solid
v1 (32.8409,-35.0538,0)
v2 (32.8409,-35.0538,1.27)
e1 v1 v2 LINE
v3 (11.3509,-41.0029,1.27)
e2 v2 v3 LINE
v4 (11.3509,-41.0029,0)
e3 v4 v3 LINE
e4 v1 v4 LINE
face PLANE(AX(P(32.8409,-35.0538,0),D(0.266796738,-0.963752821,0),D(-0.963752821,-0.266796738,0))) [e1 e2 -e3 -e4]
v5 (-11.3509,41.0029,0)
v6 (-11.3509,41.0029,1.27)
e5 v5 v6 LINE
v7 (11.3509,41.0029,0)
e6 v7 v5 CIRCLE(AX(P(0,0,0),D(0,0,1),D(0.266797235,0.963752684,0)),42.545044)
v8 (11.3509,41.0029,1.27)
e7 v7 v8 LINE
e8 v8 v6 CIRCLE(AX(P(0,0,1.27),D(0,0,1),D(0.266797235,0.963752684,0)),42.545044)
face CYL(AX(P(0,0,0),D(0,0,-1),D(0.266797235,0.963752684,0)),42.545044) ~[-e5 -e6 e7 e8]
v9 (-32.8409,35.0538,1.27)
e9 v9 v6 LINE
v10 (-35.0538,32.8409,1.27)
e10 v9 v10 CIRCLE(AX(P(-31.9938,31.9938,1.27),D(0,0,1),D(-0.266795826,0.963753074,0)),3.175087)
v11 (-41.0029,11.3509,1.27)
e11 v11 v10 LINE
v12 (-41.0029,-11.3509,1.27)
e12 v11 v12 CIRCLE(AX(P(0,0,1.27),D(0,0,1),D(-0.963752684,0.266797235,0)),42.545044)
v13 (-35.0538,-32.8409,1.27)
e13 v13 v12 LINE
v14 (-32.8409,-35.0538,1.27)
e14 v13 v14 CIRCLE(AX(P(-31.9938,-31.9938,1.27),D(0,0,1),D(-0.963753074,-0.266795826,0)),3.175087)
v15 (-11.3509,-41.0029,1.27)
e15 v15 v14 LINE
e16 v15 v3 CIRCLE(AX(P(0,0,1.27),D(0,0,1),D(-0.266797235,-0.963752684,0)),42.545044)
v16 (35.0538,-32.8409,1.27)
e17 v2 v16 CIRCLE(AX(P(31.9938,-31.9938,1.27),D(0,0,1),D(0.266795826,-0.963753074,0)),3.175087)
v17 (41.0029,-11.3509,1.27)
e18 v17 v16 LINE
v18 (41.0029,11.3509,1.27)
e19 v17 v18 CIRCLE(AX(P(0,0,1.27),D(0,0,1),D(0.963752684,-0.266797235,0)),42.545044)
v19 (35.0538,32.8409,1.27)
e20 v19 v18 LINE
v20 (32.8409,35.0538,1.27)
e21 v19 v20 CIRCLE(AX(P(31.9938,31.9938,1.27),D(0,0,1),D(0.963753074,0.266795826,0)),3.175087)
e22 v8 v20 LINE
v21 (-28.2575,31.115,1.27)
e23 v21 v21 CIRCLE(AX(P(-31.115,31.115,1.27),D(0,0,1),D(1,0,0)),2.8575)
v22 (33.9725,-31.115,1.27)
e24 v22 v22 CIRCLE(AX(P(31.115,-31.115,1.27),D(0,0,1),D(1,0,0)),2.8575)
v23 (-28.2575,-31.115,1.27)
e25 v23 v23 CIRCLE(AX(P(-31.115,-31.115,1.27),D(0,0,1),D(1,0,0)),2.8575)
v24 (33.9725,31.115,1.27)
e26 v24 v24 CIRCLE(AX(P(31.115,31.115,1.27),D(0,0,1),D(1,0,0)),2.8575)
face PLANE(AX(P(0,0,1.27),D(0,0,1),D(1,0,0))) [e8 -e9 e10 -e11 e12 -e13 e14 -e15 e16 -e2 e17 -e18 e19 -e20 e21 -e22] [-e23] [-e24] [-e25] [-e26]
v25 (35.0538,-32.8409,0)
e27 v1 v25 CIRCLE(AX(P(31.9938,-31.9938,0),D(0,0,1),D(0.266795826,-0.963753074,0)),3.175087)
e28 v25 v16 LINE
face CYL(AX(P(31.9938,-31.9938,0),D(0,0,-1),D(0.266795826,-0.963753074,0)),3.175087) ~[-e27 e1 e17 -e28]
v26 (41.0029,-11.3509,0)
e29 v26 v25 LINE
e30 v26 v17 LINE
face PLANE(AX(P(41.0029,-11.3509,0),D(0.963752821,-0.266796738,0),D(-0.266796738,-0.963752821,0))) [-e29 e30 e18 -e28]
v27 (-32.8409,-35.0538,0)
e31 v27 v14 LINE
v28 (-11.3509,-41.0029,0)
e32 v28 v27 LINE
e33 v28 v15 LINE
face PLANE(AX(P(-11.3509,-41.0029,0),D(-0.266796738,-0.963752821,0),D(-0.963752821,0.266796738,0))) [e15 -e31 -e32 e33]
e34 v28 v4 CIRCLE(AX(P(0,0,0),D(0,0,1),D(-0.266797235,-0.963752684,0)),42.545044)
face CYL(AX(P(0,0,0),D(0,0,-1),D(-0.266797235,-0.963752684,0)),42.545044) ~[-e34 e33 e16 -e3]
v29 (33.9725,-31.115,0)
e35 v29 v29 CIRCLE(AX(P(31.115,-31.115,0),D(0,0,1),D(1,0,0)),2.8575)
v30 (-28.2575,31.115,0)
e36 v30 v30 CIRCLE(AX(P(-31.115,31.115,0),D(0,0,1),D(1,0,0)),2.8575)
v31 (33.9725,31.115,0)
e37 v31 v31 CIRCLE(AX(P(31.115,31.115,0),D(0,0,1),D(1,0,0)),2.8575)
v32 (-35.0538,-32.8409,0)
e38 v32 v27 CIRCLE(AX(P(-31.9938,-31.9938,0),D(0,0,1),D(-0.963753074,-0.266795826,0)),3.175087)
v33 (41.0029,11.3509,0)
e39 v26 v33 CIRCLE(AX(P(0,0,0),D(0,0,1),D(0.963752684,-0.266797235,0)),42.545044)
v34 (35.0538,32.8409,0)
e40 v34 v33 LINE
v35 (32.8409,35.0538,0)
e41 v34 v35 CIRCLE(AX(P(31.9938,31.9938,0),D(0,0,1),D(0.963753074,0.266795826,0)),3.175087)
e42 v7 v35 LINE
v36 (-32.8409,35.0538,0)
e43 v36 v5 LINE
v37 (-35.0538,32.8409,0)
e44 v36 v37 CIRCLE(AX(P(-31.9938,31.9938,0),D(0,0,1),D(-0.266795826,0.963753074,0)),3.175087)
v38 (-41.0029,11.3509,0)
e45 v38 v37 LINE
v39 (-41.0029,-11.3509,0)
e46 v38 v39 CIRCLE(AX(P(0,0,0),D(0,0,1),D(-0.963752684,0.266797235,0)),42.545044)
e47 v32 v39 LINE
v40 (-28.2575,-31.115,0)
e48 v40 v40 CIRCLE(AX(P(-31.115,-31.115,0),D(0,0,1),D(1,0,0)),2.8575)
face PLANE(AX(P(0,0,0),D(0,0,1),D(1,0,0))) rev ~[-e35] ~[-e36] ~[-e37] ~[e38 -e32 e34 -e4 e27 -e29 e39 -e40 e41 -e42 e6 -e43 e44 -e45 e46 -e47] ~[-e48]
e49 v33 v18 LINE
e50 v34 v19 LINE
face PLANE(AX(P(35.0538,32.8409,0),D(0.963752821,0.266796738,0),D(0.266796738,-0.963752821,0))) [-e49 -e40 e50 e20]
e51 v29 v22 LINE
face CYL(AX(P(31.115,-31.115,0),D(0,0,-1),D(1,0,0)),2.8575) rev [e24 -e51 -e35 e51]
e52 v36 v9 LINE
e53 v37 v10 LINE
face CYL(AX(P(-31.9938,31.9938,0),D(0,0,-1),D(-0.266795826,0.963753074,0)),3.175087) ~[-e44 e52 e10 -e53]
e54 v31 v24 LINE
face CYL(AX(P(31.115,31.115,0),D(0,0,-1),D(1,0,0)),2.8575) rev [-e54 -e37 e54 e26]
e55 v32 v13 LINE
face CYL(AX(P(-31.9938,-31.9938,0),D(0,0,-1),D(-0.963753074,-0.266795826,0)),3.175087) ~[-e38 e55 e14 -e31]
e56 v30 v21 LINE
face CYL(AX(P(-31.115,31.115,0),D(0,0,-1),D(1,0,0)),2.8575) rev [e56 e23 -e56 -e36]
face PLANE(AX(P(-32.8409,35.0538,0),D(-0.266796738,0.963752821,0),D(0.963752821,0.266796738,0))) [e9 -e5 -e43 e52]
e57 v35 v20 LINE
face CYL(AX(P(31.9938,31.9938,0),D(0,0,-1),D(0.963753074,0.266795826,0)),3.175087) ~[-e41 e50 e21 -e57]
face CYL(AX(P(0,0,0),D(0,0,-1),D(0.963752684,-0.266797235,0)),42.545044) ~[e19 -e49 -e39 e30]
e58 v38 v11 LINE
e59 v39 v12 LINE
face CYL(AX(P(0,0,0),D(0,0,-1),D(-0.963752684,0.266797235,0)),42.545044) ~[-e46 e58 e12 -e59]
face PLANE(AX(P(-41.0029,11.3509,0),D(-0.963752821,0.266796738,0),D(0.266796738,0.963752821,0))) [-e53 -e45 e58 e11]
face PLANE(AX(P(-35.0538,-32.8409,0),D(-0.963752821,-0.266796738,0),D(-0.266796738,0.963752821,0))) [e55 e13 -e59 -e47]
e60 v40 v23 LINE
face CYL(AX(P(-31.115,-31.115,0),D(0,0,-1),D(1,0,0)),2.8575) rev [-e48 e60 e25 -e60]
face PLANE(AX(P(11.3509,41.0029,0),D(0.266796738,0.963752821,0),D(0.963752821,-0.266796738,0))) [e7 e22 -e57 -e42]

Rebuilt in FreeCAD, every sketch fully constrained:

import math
import FreeCAD as App
import Part
import Sketcher
Q = App.Units.Quantity

doc = App.newDocument("Part")
body = doc.addObject("PartDesign::Body", "Body")

sketch1 = doc.addObject("Sketcher::SketchObject", "Sketch")
body.addObject(sketch1)
sketch1.AttachmentSupport = (doc.XY_Plane, [""])
sketch1.MapMode = "FlatFace"
sketch1.addGeometry([
    Part.LineSegment(App.Vector(41, 11.4, 0), App.Vector(35.1, 32.8, 0)),
    Part.ArcOfCircle(Part.Circle(App.Vector(32, 32, 0), App.Vector(0, 0, 1), 3.2), math.radians(15), math.radians(75)),
    Part.LineSegment(App.Vector(32.8, 35.1, 0), App.Vector(11.4, 41, 0)),
    Part.ArcOfCircle(Part.Circle(App.Vector(0, 0, 0), App.Vector(0, 0, 1), 42.5), math.radians(75), math.radians(105)),
    Part.LineSegment(App.Vector(-11.4, 41, 0), App.Vector(-32.8, 35.1, 0)),
    Part.ArcOfCircle(Part.Circle(App.Vector(-32, 32, 0), App.Vector(0, 0, 1), 3.2), math.radians(105), math.radians(165)),
    Part.LineSegment(App.Vector(-35.1, 32.8, 0), App.Vector(-41, 11.4, 0)),
    Part.ArcOfCircle(Part.Circle(App.Vector(0, 0, 0), App.Vector(0, 0, 1), 42.5), math.radians(165), math.radians(195)),
    Part.LineSegment(App.Vector(-41, -11.4, 0), App.Vector(-35.1, -32.8, 0)),
    Part.ArcOfCircle(Part.Circle(App.Vector(-32, -32, 0), App.Vector(0, 0, 1), 3.2), math.radians(-165), math.radians(-105)),
    Part.LineSegment(App.Vector(-32.8, -35.1, 0), App.Vector(-11.4, -41, 0)),
    Part.ArcOfCircle(Part.Circle(App.Vector(0, 0, 0), App.Vector(0, 0, 1), 42.5), math.radians(-105), math.radians(-75)),
    Part.LineSegment(App.Vector(11.4, -41, 0), App.Vector(32.8, -35.1, 0)),
    Part.ArcOfCircle(Part.Circle(App.Vector(32, -32, 0), App.Vector(0, 0, 1), 3.2), math.radians(-75), math.radians(-15)),
    Part.LineSegment(App.Vector(35.1, -32.8, 0), App.Vector(41, -11.4, 0)),
    Part.ArcOfCircle(Part.Circle(App.Vector(0, 0, 0), App.Vector(0, 0, 1), 42.5), math.radians(-15), math.radians(15)),
    Part.Circle(App.Vector(-31.1, -31.1, 0), App.Vector(0, 0, 1), 2.9),
    Part.Circle(App.Vector(31.1, -31.1, 0), App.Vector(0, 0, 1), 2.9),
    Part.Circle(App.Vector(-31.1, 31.1, 0), App.Vector(0, 0, 1), 2.9),
    Part.Circle(App.Vector(31.1, 31.1, 0), App.Vector(0, 0, 1), 2.9),
], False)
sketch1.addConstraint([
    Sketcher.Constraint("Tangent", 0, 2, 1, 1),
    Sketcher.Constraint("Tangent", 1, 2, 2, 1),
    Sketcher.Constraint("Tangent", 2, 2, 3, 1),
    Sketcher.Constraint("Tangent", 3, 2, 4, 1),
    Sketcher.Constraint("Tangent", 4, 2, 5, 1),
    Sketcher.Constraint("Tangent", 5, 2, 6, 1),
    Sketcher.Constraint("Tangent", 6, 2, 7, 1),
    Sketcher.Constraint("Tangent", 7, 2, 8, 1),
    Sketcher.Constraint("Tangent", 8, 2, 9, 1),
    Sketcher.Constraint("Tangent", 9, 2, 10, 1),
    Sketcher.Constraint("Tangent", 10, 2, 11, 1),
    Sketcher.Constraint("Tangent", 11, 2, 12, 1),
    Sketcher.Constraint("Tangent", 12, 2, 13, 1),
    Sketcher.Constraint("Tangent", 13, 2, 14, 1),
    Sketcher.Constraint("Tangent", 14, 2, 15, 1),
    Sketcher.Constraint("Tangent", 15, 2, 0, 1),
    Sketcher.Constraint("Coincident", 3, 3, -1, 1),
    Sketcher.Constraint("Coincident", 7, 3, -1, 1),
    Sketcher.Constraint("Coincident", 11, 3, -1, 1),
    Sketcher.Constraint("Coincident", 15, 3, -1, 1),
    Sketcher.Constraint("Equal", 1, 5),
    Sketcher.Constraint("Equal", 3, 7),
    Sketcher.Constraint("Equal", 5, 9),
    Sketcher.Constraint("Equal", 7, 11),
    Sketcher.Constraint("Equal", 9, 13),
    Sketcher.Constraint("Equal", 11, 15),
    Sketcher.Constraint("Equal", 16, 17),
    Sketcher.Constraint("Equal", 17, 18),
    Sketcher.Constraint("Equal", 18, 19),
    Sketcher.Constraint("Symmetric", 1, 3, 9, 3, -1, 1),
    Sketcher.Constraint("Symmetric", 5, 3, 13, 3, -1, 1),
    Sketcher.Constraint("Symmetric", 17, 3, 18, 3, -1, 1),
    Sketcher.Constraint("Symmetric", 16, 3, 19, 3, -1, 1),
    Sketcher.Constraint("Symmetric", 1, 3, 5, 3, -2),
    Sketcher.Constraint("Symmetric", 16, 3, 17, 3, -2),
    Sketcher.Constraint("Perpendicular", 0, 4),
    Sketcher.Constraint("Diameter", 16, Q("0.225 in")),
    Sketcher.Constraint("Radius", 1, Q("0.125 in")),
    Sketcher.Constraint("Radius", 3, Q("1.675 in")),
    Sketcher.Constraint("DistanceX", 16, 3, -1, 1, Q("1.225 in")),
    Sketcher.Constraint("DistanceY", 16, 3, -1, 1, Q("1.225 in")),
    Sketcher.Constraint("DistanceX", -1, 1, 1, 3, Q("1.2596 in")),
])
pad1 = doc.addObject("PartDesign::Pad", "Pad")
body.addObject(pad1)
pad1.Profile = sketch1
pad1.Length = Q("0.05 in")

doc.recompute()
